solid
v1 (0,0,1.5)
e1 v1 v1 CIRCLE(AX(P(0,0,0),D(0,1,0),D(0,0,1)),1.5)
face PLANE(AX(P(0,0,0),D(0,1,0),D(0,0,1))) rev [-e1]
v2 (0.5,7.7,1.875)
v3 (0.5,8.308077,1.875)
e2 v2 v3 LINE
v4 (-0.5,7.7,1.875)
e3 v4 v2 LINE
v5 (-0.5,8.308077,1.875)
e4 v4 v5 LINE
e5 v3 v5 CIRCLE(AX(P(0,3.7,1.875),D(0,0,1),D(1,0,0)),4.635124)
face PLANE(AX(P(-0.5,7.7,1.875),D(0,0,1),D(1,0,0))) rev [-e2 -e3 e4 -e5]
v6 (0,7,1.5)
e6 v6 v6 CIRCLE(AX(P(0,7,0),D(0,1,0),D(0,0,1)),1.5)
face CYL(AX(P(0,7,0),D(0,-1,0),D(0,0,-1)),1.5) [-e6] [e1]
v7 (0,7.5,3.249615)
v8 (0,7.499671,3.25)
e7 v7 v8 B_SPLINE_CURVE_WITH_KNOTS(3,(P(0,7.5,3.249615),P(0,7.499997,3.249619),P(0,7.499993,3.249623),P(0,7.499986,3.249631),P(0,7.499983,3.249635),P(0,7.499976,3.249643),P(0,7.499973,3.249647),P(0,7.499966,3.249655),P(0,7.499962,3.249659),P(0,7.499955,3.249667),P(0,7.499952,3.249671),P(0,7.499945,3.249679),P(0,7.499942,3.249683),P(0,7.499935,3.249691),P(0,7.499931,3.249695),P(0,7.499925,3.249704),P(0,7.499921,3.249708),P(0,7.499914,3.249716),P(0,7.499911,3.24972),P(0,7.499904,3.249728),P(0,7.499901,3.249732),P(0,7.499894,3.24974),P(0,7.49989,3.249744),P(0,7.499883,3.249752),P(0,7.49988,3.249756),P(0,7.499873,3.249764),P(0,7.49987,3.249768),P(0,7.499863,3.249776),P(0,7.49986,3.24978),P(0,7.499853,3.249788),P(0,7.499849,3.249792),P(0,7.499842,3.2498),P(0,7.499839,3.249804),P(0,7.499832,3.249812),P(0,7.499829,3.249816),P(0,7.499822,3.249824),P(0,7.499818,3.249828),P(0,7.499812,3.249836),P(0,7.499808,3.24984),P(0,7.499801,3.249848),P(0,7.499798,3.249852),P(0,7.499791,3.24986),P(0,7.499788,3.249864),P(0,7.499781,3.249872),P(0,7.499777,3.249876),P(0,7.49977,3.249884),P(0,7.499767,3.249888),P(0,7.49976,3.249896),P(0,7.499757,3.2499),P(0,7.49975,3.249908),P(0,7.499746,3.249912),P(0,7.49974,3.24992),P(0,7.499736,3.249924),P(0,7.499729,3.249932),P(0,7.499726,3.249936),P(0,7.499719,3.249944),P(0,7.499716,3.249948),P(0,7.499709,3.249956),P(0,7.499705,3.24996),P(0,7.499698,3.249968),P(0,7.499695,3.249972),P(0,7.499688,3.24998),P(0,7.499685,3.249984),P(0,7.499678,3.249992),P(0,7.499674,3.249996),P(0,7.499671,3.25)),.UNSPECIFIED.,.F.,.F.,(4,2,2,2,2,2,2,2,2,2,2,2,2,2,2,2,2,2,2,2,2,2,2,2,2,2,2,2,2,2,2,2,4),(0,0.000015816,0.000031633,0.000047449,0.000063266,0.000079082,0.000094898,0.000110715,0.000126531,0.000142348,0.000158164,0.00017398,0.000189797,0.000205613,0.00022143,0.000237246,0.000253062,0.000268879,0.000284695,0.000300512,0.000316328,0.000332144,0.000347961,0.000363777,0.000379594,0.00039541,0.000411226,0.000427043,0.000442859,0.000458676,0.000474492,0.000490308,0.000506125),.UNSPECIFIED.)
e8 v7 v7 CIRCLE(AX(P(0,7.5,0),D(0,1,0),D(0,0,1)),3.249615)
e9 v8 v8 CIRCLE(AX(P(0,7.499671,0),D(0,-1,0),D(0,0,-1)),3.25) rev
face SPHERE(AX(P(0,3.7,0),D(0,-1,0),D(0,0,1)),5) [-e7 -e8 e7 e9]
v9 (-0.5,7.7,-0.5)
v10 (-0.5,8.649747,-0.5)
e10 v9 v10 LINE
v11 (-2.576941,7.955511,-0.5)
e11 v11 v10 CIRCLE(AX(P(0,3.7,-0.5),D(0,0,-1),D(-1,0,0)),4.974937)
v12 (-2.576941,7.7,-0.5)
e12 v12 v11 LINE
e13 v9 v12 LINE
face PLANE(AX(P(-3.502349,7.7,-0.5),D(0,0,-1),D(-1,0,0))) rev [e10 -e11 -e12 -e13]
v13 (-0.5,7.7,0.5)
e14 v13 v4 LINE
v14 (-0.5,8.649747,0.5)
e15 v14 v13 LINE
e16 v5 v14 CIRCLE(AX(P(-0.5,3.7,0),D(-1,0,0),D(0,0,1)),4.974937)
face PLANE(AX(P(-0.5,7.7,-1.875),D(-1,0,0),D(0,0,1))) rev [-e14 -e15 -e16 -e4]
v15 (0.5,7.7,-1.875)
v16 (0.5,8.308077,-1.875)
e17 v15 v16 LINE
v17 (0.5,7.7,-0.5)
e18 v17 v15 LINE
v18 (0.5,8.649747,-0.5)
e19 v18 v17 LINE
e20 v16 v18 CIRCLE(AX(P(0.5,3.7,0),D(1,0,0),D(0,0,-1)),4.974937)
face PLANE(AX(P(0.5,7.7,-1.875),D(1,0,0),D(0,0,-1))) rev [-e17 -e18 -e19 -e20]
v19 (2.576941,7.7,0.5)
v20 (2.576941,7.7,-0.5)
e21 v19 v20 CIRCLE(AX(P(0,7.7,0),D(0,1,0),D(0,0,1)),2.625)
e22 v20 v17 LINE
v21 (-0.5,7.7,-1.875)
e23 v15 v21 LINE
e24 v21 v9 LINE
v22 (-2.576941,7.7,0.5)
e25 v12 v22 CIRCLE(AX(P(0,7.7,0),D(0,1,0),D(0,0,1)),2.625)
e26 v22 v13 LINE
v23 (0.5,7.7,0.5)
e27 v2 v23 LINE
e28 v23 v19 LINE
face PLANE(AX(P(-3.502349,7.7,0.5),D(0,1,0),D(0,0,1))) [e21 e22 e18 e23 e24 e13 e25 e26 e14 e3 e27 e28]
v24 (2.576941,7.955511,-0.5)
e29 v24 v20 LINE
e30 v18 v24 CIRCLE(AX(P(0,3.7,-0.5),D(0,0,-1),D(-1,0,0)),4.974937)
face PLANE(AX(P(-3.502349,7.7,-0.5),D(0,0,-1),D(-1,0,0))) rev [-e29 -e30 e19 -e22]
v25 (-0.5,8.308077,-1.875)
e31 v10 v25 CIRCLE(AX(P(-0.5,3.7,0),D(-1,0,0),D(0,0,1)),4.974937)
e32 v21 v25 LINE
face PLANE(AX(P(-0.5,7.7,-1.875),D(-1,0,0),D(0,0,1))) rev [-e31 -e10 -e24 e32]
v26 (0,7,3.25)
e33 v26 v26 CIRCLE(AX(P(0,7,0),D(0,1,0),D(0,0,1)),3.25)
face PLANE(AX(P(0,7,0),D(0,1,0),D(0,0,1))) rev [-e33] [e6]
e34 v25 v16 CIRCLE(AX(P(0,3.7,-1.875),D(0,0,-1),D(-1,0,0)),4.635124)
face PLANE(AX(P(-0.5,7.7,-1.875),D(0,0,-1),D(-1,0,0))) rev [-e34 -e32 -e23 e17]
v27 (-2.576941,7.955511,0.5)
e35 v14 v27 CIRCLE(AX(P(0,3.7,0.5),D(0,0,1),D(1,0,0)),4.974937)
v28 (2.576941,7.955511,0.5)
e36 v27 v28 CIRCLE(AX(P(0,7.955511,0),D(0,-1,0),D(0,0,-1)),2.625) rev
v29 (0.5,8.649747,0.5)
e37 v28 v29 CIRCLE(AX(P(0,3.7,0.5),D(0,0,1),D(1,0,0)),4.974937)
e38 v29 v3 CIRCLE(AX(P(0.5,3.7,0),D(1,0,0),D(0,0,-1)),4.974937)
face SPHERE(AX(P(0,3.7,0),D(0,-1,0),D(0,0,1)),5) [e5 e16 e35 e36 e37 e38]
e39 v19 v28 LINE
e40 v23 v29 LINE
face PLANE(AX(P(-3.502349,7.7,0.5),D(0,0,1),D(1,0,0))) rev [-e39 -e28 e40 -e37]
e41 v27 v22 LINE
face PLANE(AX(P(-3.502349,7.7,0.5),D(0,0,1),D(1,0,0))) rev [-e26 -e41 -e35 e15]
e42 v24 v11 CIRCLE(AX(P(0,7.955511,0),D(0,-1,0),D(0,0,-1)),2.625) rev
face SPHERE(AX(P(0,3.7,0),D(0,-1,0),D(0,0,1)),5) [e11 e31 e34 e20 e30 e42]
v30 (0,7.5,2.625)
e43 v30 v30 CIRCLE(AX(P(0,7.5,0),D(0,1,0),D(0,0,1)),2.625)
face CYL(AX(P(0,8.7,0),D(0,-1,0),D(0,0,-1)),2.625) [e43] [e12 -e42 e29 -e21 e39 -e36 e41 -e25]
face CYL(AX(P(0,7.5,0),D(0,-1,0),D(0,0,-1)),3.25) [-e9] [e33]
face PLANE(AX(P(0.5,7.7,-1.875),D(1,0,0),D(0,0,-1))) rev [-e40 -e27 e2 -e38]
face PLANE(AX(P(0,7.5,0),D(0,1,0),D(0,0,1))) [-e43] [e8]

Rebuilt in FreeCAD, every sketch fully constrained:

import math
import FreeCAD as App
import Part
import Sketcher

doc = App.newDocument("Part")
body = doc.addObject("PartDesign::Body", "Body")

# Sketch on XZ plane
sketch1 = body.newObject("Sketcher::SketchObject", "Sketch")
sketch1.AttachmentSupport = (doc.getObject("XZ_Plane"), [""])
sketch1.MapMode = "FlatFace"
sketch1.addGeometry(Part.Circle(App.Vector(0, 0, 0), App.Vector(0, 0, 1), 1.5), False)
sketch1.addConstraint([
    Sketcher.Constraint("Coincident", 0, 3, -1, 1),
    Sketcher.Constraint("Diameter", 0, 3.0),
])
pad1 = body.newObject("PartDesign::Pad", "Pad")
pad1.Profile = sketch1
pad1.Length = 7
pad1.Reversed = True

# Sketch on XZ plane
sketch2 = body.newObject("Sketcher::SketchObject", "Sketch001")
sketch2.AttachmentSupport = (doc.getObject("XZ_Plane"), [""])
sketch2.MapMode = "FlatFace"
sketch2.AttachmentOffset = App.Placement(App.Vector(0, 0, -7), App.Rotation())
sketch2.addGeometry(Part.Circle(App.Vector(0, 0, 0), App.Vector(0, 0, 1), 3.25), False)
sketch2.addConstraint([
    Sketcher.Constraint("Coincident", 0, 3, -1, 1),
    Sketcher.Constraint("Diameter", 0, 6.5),
])
pad2 = body.newObject("PartDesign::Pad", "Pad001")
pad2.Profile = sketch2
pad2.Length = 0.5
pad2.Reversed = True

# Sketch on XZ plane
sketch3 = body.newObject("Sketcher::SketchObject", "Sketch002")
sketch3.AttachmentSupport = (doc.getObject("XZ_Plane"), [""])
sketch3.MapMode = "FlatFace"
sketch3.AttachmentOffset = App.Placement(App.Vector(0, 0, -7.5), App.Rotation())
sketch3.addGeometry(Part.Circle(App.Vector(0, 0, 0), App.Vector(0, 0, 1), 2.625), False)
sketch3.addConstraint([
    Sketcher.Constraint("Coincident", 0, 3, -1, 1),
    Sketcher.Constraint("Diameter", 0, 5.25),
])
pad3 = body.newObject("PartDesign::Pad", "Pad002")
pad3.Profile = sketch3
pad3.Length = 1.2
pad3.Reversed = True

# Sketch on XZ plane
sketch4 = body.newObject("Sketcher::SketchObject", "Sketch003")
sketch4.AttachmentSupport = (doc.getObject("XZ_Plane"), [""])
sketch4.MapMode = "FlatFace"
sketch4.AttachmentOffset = App.Placement(App.Vector(0, 0, -8.7), App.Rotation())
sketch4.addGeometry([
    Part.LineSegment(App.Vector(3.502349, 0.5, 0), App.Vector(3.502349, -0.5, 0)),
    Part.LineSegment(App.Vector(3.502349, -0.5, 0), App.Vector(-3.502349, -0.5, 0)),
    Part.LineSegment(App.Vector(-3.502349, -0.5, 0), App.Vector(-3.502349, 0.5, 0)),
    Part.LineSegment(App.Vector(-3.502349, 0.5, 0), App.Vector(3.502349, 0.5, 0)),
], False)
sketch4.addConstraint([
    Sketcher.Constraint("Coincident", 0, 2, 1, 1),
    Sketcher.Constraint("Coincident", 1, 2, 2, 1),
    Sketcher.Constraint("Coincident", 2, 2, 3, 1),
    Sketcher.Constraint("Coincident", 3, 2, 0, 1),
    Sketcher.Constraint("Vertical", 0),
    Sketcher.Constraint("Horizontal", 1),
    Sketcher.Constraint("Vertical", 2),
    Sketcher.Constraint("Horizontal", 3),
    Sketcher.Constraint("Symmetric", 0, 2, 2, 2, -1, 1),
    Sketcher.Constraint("DistanceY", 0, 2, 0, 1, 1.0),
    Sketcher.Constraint("DistanceX", 1, 2, 1, 1, 7.004697),
])
pocket1 = body.newObject("PartDesign::Pocket", "Pocket")
pocket1.Profile = sketch4
pocket1.Length = 1
pocket1.Reversed = True

# Sketch on XZ plane
sketch5 = body.newObject("Sketcher::SketchObject", "Sketch004")
sketch5.AttachmentSupport = (doc.getObject("XZ_Plane"), [""])
sketch5.MapMode = "FlatFace"
sketch5.AttachmentOffset = App.Placement(App.Vector(0, 0, -8.7), App.Rotation())
sketch5.addGeometry([
    Part.LineSegment(App.Vector(0.5, 1.875, 0), App.Vector(0.5, -1.875, 0)),
    Part.LineSegment(App.Vector(0.5, -1.875, 0), App.Vector(-0.5, -1.875, 0)),
    Part.LineSegment(App.Vector(-0.5, -1.875, 0), App.Vector(-0.5, 1.875, 0)),
    Part.LineSegment(App.Vector(-0.5, 1.875, 0), App.Vector(0.5, 1.875, 0)),
], False)
sketch5.addConstraint([
    Sketcher.Constraint("Coincident", 0, 2, 1, 1),
    Sketcher.Constraint("Coincident", 1, 2, 2, 1),
    Sketcher.Constraint("Coincident", 2, 2, 3, 1),
    Sketcher.Constraint("Coincident", 3, 2, 0, 1),
    Sketcher.Constraint("Vertical", 0),
    Sketcher.Constraint("Horizontal", 1),
    Sketcher.Constraint("Vertical", 2),
    Sketcher.Constraint("Horizontal", 3),
    Sketcher.Constraint("Symmetric", 0, 2, 2, 2, -1, 1),
    Sketcher.Constraint("DistanceX", 1, 2, 1, 1, 1.0),
    Sketcher.Constraint("DistanceY", 0, 2, 0, 1, 3.75),
])
pocket2 = body.newObject("PartDesign::Pocket", "Pocket001")
pocket2.Profile = sketch5
pocket2.Length = 1
pocket2.Reversed = True

# Sketch on YZ plane
sketch6 = body.newObject("Sketcher::SketchObject", "Sketch005")
sketch6.AttachmentSupport = (doc.getObject("YZ_Plane"), [""])
sketch6.MapMode = "FlatFace"
sketch6.addGeometry([
    Part.LineSegment(App.Vector(11.324107, 0, 0), App.Vector(11.324107, 3.685812, 0)),
    Part.LineSegment(App.Vector(11.324107, 3.685812, 0), App.Vector(7.078578, 3.685812, 0)),
    Part.ArcOfCircle(Part.Circle(App.Vector(3.7, 0, 0), App.Vector(0, 0, 1), 5), math.radians(0), math.radians(47.490249)),
    Part.LineSegment(App.Vector(8.7, 0, 0), App.Vector(11.324107, 0, 0)),
], False)
sketch6.addConstraint([
    Sketcher.Constraint("Coincident", 0, 2, 1, 1),
    Sketcher.Constraint("Coincident", 1, 2, 2, 2),
    Sketcher.Constraint("Coincident", 2, 1, 3, 1),
    Sketcher.Constraint("Coincident", 3, 2, 0, 1),
    Sketcher.Constraint("Vertical", 0),
    Sketcher.Constraint("Horizontal", 1),
    Sketcher.Constraint("Horizontal", 3),
    Sketcher.Constraint("PointOnObject", 2, 3, -1),
    Sketcher.Constraint("PointOnObject", 2, 1, -1),
    Sketcher.Constraint("Radius", 2, 5.0),
    Sketcher.Constraint("DistanceX", -1, 1, 2, 3, 3.7),
    Sketcher.Constraint("DistanceX", 1, 2, 1, 1, 4.245529),
    Sketcher.Constraint("DistanceY", 0, 1, 0, 2, 3.685812),
])
groove = body.newObject("PartDesign::Groove", "Groove")
groove.Profile = sketch6
groove.ReferenceAxis = (sketch6, ["H_Axis"])
groove.Angle = 360

doc.recompute()
